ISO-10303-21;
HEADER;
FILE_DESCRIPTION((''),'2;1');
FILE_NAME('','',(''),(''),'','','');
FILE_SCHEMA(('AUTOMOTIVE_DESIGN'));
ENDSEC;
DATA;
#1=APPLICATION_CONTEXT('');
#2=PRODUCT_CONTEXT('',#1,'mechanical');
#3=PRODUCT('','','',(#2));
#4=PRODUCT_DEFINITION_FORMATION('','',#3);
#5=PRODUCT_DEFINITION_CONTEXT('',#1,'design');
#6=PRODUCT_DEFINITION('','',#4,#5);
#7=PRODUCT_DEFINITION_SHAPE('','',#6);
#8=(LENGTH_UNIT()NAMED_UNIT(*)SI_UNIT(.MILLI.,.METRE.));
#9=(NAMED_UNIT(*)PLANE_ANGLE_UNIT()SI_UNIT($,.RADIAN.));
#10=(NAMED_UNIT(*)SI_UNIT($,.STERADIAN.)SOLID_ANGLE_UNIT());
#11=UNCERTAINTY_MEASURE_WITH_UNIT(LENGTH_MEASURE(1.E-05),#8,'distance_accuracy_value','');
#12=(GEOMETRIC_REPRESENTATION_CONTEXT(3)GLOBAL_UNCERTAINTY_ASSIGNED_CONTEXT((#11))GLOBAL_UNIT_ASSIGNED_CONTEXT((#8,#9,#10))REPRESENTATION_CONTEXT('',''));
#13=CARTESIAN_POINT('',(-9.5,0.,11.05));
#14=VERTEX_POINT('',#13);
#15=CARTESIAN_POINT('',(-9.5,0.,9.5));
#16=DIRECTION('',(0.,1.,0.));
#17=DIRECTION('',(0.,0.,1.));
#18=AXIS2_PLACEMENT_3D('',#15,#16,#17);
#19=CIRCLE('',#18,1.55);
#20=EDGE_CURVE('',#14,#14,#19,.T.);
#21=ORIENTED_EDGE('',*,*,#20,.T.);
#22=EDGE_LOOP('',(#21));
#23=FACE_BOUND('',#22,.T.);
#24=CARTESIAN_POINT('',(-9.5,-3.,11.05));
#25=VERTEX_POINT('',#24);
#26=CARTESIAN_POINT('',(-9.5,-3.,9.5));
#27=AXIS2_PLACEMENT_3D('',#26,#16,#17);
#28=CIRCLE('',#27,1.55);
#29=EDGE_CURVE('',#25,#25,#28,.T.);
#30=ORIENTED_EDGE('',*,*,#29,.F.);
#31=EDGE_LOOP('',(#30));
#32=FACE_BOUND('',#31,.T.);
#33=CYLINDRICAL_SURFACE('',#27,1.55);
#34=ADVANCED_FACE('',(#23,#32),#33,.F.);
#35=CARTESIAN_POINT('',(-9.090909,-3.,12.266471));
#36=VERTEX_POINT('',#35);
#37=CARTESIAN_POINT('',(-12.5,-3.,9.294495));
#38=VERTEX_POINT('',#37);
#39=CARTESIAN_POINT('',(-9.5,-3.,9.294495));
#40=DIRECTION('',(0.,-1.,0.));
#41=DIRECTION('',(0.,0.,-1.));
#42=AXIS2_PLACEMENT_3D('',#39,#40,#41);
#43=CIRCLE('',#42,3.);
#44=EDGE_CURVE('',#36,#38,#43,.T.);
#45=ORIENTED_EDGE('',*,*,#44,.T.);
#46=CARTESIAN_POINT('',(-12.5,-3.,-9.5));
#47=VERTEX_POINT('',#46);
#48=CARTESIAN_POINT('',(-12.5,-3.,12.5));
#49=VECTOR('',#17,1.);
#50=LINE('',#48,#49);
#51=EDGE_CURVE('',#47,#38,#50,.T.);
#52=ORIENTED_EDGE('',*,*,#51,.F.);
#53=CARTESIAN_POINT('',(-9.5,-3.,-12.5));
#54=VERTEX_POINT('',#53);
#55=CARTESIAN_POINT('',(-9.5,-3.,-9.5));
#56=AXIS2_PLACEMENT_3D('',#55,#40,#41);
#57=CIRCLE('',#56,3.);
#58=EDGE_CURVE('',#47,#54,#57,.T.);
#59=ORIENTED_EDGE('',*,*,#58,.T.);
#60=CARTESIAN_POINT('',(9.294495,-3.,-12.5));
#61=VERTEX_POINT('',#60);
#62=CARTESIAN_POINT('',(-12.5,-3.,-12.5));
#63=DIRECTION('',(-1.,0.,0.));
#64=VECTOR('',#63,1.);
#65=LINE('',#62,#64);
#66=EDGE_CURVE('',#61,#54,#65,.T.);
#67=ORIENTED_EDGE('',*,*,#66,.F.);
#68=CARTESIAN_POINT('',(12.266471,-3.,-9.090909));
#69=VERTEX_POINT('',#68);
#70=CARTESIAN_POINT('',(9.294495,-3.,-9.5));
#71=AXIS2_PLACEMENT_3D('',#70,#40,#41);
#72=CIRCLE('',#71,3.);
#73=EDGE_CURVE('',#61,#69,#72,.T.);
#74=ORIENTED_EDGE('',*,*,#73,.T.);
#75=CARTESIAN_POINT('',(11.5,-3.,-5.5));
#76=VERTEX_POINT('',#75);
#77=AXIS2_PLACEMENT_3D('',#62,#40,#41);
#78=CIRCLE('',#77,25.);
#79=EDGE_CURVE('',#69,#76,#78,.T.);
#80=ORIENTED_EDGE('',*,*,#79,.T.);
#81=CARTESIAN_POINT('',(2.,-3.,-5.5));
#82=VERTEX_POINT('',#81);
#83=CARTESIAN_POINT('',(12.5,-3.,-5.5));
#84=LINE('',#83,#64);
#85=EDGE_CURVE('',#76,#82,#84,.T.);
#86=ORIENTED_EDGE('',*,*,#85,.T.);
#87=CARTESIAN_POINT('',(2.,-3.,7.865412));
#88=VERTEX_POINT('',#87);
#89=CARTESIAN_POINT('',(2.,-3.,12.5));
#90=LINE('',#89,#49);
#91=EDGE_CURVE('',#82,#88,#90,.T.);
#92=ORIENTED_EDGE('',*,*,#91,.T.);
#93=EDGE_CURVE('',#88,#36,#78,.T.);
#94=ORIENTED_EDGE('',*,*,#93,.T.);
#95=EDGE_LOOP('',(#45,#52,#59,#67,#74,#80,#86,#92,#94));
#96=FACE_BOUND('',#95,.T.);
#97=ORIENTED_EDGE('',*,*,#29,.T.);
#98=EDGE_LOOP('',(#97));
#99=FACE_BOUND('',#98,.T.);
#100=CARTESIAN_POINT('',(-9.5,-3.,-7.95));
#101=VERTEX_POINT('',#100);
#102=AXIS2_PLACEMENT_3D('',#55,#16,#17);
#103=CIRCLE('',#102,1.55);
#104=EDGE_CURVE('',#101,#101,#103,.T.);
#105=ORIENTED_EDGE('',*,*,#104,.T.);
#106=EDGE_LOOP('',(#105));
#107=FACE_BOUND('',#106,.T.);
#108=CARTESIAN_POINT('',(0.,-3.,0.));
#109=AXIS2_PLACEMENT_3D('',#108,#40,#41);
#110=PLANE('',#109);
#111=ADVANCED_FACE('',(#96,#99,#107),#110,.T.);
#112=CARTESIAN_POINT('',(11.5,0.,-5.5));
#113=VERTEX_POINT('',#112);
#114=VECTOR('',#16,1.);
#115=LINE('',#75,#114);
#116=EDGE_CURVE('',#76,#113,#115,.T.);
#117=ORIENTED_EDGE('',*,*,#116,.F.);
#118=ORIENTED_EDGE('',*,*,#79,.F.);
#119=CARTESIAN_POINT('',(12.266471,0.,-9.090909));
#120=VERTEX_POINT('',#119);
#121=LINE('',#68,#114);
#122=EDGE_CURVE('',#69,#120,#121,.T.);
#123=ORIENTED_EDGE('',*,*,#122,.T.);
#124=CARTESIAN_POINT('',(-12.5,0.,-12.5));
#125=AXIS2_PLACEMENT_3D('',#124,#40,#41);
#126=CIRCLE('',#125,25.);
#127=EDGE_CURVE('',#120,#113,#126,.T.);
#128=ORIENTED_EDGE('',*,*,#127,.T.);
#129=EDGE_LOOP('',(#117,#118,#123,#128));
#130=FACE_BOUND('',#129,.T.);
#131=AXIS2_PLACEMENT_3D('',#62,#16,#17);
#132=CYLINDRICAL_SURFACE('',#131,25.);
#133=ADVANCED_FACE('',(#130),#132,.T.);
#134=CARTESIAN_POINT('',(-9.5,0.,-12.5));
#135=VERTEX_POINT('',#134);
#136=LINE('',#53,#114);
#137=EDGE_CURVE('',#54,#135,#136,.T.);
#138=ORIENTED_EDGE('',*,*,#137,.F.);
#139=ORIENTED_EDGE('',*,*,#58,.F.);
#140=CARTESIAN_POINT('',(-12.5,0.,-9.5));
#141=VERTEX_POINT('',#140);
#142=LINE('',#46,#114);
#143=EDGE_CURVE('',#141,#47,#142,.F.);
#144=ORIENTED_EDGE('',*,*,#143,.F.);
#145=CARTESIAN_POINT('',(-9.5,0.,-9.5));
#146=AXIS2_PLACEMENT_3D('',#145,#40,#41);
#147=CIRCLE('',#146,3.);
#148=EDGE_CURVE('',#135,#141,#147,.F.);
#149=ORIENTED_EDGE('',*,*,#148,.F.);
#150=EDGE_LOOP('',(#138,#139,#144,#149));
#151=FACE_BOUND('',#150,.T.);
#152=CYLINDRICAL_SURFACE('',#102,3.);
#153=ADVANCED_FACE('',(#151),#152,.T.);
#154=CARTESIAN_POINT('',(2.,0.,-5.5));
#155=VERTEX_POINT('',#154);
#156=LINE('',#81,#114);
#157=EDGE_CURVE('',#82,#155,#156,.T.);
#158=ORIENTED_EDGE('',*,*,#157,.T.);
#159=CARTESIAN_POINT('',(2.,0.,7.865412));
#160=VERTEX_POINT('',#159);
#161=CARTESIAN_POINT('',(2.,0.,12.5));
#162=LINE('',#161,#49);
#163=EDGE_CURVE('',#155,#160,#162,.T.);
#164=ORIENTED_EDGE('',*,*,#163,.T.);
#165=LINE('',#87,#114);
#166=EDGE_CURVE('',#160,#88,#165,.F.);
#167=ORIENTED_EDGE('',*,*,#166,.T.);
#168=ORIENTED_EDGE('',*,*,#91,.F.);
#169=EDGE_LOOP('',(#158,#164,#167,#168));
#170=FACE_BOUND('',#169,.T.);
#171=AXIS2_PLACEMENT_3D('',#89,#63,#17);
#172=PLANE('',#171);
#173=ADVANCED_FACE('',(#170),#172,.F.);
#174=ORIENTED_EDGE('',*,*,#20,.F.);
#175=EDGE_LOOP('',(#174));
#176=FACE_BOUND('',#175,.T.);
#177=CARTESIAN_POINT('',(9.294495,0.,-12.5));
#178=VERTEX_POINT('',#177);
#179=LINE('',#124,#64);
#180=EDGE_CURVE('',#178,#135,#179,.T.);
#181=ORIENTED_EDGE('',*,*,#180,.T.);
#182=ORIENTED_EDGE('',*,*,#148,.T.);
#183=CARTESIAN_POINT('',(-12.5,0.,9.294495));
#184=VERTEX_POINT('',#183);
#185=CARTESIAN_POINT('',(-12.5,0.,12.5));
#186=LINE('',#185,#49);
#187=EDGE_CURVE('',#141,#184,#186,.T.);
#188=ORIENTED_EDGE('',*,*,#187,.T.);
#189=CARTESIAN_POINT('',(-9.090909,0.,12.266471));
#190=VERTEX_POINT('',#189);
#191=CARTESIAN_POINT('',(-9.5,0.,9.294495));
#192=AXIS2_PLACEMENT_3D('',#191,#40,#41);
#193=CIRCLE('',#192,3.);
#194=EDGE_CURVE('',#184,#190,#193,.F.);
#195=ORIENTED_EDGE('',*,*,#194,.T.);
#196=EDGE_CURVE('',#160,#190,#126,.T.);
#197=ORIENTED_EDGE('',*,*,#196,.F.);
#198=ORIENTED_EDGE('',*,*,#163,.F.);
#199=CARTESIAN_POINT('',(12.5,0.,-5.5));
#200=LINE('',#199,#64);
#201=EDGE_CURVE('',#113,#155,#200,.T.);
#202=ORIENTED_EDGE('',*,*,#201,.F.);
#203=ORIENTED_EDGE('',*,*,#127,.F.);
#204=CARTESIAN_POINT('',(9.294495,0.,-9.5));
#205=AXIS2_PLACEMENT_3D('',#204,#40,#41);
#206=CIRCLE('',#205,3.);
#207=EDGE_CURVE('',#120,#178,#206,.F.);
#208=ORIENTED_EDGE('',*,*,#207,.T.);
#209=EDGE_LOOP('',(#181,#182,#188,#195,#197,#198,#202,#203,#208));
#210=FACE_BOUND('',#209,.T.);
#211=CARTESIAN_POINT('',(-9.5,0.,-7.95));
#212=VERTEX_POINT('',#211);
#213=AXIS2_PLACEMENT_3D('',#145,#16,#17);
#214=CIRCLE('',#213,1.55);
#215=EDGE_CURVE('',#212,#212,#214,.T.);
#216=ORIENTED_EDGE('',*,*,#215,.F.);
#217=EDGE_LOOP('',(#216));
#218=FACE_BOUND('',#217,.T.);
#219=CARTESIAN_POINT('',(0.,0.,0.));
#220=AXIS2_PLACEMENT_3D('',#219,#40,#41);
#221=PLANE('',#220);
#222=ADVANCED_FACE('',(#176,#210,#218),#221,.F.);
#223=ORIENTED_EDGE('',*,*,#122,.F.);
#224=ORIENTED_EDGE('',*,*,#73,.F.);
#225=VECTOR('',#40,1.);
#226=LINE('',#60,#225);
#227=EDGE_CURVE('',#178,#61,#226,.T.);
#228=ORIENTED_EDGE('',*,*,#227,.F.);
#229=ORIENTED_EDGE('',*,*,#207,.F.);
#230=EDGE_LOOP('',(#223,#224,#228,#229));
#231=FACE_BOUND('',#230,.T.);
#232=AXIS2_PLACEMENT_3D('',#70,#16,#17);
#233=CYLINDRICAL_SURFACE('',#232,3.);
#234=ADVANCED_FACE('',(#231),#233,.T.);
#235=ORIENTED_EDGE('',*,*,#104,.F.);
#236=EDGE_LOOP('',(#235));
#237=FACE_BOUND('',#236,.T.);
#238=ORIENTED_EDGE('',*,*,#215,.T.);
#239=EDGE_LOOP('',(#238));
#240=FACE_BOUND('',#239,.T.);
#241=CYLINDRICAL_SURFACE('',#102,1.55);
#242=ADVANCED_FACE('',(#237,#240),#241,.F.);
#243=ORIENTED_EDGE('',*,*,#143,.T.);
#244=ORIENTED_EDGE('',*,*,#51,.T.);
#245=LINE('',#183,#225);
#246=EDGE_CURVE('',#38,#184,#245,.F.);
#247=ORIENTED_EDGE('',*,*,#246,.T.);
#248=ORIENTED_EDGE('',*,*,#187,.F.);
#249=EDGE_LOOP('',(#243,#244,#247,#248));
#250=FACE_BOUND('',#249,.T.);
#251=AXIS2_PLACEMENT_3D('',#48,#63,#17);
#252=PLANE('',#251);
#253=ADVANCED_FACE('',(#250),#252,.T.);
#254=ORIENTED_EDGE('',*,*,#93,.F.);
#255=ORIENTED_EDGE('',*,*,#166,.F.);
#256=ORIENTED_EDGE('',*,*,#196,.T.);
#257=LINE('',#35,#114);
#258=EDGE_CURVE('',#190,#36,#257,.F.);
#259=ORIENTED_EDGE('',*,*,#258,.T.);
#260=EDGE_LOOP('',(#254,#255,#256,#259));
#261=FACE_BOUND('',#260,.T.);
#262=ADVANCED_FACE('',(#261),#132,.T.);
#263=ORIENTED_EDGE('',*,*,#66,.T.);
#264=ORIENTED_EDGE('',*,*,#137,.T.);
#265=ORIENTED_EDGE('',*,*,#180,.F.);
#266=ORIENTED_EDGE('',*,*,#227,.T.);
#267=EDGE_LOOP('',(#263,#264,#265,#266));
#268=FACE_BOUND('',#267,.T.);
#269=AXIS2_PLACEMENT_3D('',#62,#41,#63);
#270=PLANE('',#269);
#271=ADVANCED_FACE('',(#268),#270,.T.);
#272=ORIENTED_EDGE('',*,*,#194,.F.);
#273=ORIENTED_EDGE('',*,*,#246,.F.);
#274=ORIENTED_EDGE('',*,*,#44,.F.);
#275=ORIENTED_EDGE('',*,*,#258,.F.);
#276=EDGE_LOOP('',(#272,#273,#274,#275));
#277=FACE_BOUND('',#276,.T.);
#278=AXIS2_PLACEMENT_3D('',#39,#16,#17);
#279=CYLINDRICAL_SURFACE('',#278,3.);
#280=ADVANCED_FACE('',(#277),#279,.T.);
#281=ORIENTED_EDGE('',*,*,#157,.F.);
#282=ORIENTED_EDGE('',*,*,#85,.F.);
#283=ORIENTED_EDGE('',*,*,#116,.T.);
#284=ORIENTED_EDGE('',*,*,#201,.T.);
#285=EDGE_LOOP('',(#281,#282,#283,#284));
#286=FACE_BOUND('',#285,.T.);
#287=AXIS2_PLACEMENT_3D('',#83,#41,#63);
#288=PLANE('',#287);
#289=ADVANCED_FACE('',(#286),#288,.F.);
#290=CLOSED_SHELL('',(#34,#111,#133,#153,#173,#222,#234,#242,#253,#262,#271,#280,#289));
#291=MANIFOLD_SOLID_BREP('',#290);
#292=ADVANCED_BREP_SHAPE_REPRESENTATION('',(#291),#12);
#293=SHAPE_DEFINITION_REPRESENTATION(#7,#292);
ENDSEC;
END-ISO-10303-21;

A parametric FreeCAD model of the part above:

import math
import FreeCAD as App
import Part
import Sketcher
from FreeCAD import Vector
Q = App.Units.Quantity


def edges_at(feature, points):
    """Names of the edges that pass closest to the given points."""
    edges = feature.Shape.Edges
    near = lambda p: min(range(len(edges)), key=lambda i: edges[i].distToShape(Part.Vertex(*p))[0])
    return sorted({f"Edge{near(p) + 1}" for p in points})

doc = App.newDocument("Part")
body = doc.addObject("PartDesign::Body", "Body")

sketch1 = body.newObject("Sketcher::SketchObject", "Sketch")
sketch1.AttachmentSupport = (doc.getObject("XZ_Plane"), [""])
sketch1.MapMode = "FlatFace"
sketch1.addGeometry(Part.LineSegment(Vector(-12.5, -12.5, 0), Vector(-12.5, 12.5, 0)), False)
sketch1.addGeometry(Part.LineSegment(Vector(-12.5, 12.5, 0), Vector(12.5, 12.5, 0)), False)
sketch1.addGeometry(Part.LineSegment(Vector(12.5, 12.5, 0), Vector(12.5, -12.5, 0)), False)
sketch1.addGeometry(Part.LineSegment(Vector(12.5, -12.5, 0), Vector(-12.5, -12.5, 0)), False)
sketch1.addGeometry(Part.Circle(Vector(-9.5, 9.5, 0), Vector(0, 0, 1), 1.6), False)
sketch1.addGeometry(Part.Circle(Vector(-9.5, -9.5, 0), Vector(0, 0, 1), 1.6), False)
sketch1.addConstraint(Sketcher.Constraint("Coincident", 0, 2, 1, 1))
sketch1.addConstraint(Sketcher.Constraint("Coincident", 1, 2, 2, 1))
sketch1.addConstraint(Sketcher.Constraint("Coincident", 2, 2, 3, 1))
sketch1.addConstraint(Sketcher.Constraint("Coincident", 3, 2, 0, 1))
sketch1.addConstraint(Sketcher.Constraint("Vertical", 0))
sketch1.addConstraint(Sketcher.Constraint("Horizontal", 1))
sketch1.addConstraint(Sketcher.Constraint("Vertical", 2))
sketch1.addConstraint(Sketcher.Constraint("Horizontal", 3))
sketch1.addConstraint(Sketcher.Constraint("Equal", 4, 5))
sketch1.addConstraint(Sketcher.Constraint("Symmetric", 0, 2, 2, 2, -1, 1))
sketch1.addConstraint(Sketcher.Constraint("Symmetric", 4, 3, 5, 3, -1))
sketch1.addConstraint(Sketcher.Constraint("Equal", 3, 0))
sketch1.addConstraint(Sketcher.Constraint("Diameter", 4, Q("3.1 mm")))
sketch1.addConstraint(Sketcher.Constraint("DistanceX", 1, 1, 1, 2, Q("25 mm")))
sketch1.addConstraint(Sketcher.Constraint("DistanceY", 5, 3, 4, 3, Q("19 mm")))
sketch1.addConstraint(Sketcher.Constraint("DistanceX", 0, 2, 4, 3, Q("3 mm")))
pad1 = body.newObject("PartDesign::Pad", "Pad")
pad1.Profile = sketch1
pad1.Length = 3

sketch2 = body.newObject("Sketcher::SketchObject", "Sketch001")
sketch2.AttachmentSupport = (doc.getObject("XZ_Plane"), [""])
sketch2.MapMode = "FlatFace"
sketch2.addGeometry(Part.LineSegment(Vector(2, -6, 0), Vector(2, 12, 0)), False)
sketch2.addGeometry(Part.LineSegment(Vector(2, 12, 0), Vector(12, 12, 0)), False)
sketch2.addGeometry(Part.LineSegment(Vector(12, 12, 0), Vector(12, -6, 0)), False)
sketch2.addGeometry(Part.LineSegment(Vector(12, -6, 0), Vector(2, -6, 0)), False)
sketch2.addConstraint(Sketcher.Constraint("Coincident", 0, 2, 1, 1))
sketch2.addConstraint(Sketcher.Constraint("Coincident", 1, 2, 2, 1))
sketch2.addConstraint(Sketcher.Constraint("Coincident", 2, 2, 3, 1))
sketch2.addConstraint(Sketcher.Constraint("Coincident", 3, 2, 0, 1))
sketch2.addConstraint(Sketcher.Constraint("Vertical", 0))
sketch2.addConstraint(Sketcher.Constraint("Horizontal", 1))
sketch2.addConstraint(Sketcher.Constraint("Vertical", 2))
sketch2.addConstraint(Sketcher.Constraint("Horizontal", 3))
sketch2.addConstraint(Sketcher.Constraint("DistanceY", 0, 1, 0, 2, Q("18 mm")))
sketch2.addConstraint(Sketcher.Constraint("DistanceX", 1, 1, 1, 2, Q("10.5 mm")))
sketch2.addConstraint(Sketcher.Constraint("DistanceX", -1, 1, 0, 2, Q("2 mm")))
sketch2.addConstraint(Sketcher.Constraint("DistanceY", -1, 1, 0, 2, Q("12.5 mm")))
pocket1 = body.newObject("PartDesign::Pocket", "Pocket")
pocket1.Profile = sketch2
pocket1.Type = "ThroughAll"
pocket1.Reversed = True

sketch3 = body.newObject("Sketcher::SketchObject", "Sketch002")
sketch3.AttachmentSupport = (doc.getObject("XZ_Plane"), [""])
sketch3.MapMode = "FlatFace"
sketch3.addGeometry(Part.LineSegment(Vector(-12, 12, 0), Vector(12, 12, 0)), False)
sketch3.addGeometry(Part.LineSegment(Vector(12, 12, 0), Vector(12, -12, 0)), False)
sketch3.addGeometry(Part.ArcOfCircle(Part.Circle(Vector(-12, -12, 0), Vector(0, 0, 1), 25), math.radians(0), math.radians(90)), False)
sketch3.addConstraint(Sketcher.Constraint("Coincident", 0, 2, 1, 1))
sketch3.addConstraint(Sketcher.Constraint("Tangent", 1, 2, 2, 1))
sketch3.addConstraint(Sketcher.Constraint("Tangent", 2, 2, 0, 1))
sketch3.addConstraint(Sketcher.Constraint("Horizontal", 0))
sketch3.addConstraint(Sketcher.Constraint("Vertical", 1))
sketch3.addConstraint(Sketcher.Constraint("Symmetric", 1, 2, 2, 2, -1, 1))
sketch3.addConstraint(Sketcher.Constraint("Radius", 2, Q("25 mm")))
pocket2 = body.newObject("PartDesign::Pocket", "Pocket001")
pocket2.Profile = sketch3
pocket2.Type = "ThroughAll"
pocket2.Reversed = True
doc.recompute()

fillet = body.newObject("PartDesign::Fillet", "Fillet")
fillet.Base = (pocket2, edges_at(pocket2, [(-12.5, -1.5, 12.5), (-12.5, -1.5, -12.5), (12.5, -1.5, -12.5)]))
fillet.Radius = 3

doc.recompute()
